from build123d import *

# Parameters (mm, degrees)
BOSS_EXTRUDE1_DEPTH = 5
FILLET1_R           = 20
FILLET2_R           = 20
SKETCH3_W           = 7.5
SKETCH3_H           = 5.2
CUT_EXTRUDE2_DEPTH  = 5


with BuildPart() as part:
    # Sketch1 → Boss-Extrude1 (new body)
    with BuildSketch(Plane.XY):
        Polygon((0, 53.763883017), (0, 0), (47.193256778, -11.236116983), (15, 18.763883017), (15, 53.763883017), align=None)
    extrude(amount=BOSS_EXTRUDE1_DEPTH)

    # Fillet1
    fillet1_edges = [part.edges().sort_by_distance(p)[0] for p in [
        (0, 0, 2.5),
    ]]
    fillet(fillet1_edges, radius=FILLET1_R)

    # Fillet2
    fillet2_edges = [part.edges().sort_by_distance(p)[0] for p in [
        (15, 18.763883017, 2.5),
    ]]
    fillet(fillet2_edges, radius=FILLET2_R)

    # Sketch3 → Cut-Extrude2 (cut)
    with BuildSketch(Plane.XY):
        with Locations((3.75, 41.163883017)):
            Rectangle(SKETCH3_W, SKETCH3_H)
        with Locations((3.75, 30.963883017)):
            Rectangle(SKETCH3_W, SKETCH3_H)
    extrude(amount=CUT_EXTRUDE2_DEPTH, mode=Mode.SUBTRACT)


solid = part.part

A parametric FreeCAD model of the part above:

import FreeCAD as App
import Part
import Sketcher
from FreeCAD import Vector
Q = App.Units.Quantity


def edges_at(feature, points):
    """Names of the edges that pass closest to the given points."""
    edges = feature.Shape.Edges
    near = lambda p: min(range(len(edges)), key=lambda i: edges[i].distToShape(Part.Vertex(*p))[0])
    return sorted({f"Edge{near(p) + 1}" for p in points})

doc = App.newDocument("Part")
body = doc.addObject("PartDesign::Body", "Body")

sketch1 = body.newObject("Sketcher::SketchObject", "Sketch")
sketch1.AttachmentSupport = (doc.getObject("XY_Plane"), [""])
sketch1.MapMode = "FlatFace"
sketch1.addGeometry([
    Part.LineSegment(Vector(0, 54, 0), Vector(0, 0, 0)),
    Part.LineSegment(Vector(0, 0, 0), Vector(47, -11, 0)),
    Part.LineSegment(Vector(47, -11, 0), Vector(15, 19, 0)),
    Part.LineSegment(Vector(15, 19, 0), Vector(15, 54, 0)),
    Part.LineSegment(Vector(15, 54, 0), Vector(0, 54, 0)),
], False)
sketch1.addConstraint([
    Sketcher.Constraint("Coincident", 0, 2, 1, 1),
    Sketcher.Constraint("Coincident", 1, 2, 2, 1),
    Sketcher.Constraint("Coincident", 2, 2, 3, 1),
    Sketcher.Constraint("Coincident", 3, 2, 4, 1),
    Sketcher.Constraint("Coincident", 4, 2, 0, 1),
    Sketcher.Constraint("Vertical", 0),
    Sketcher.Constraint("Vertical", 3),
    Sketcher.Constraint("Horizontal", 4),
    Sketcher.Constraint("Coincident", 0, 2, -1, 1),
    Sketcher.Constraint("DistanceX", 4, 2, 4, 1, Q("15 mm")),
    Sketcher.Constraint("DistanceY", 3, 1, 3, 2, Q("35 mm")),
    Sketcher.Constraint("DistanceY", 1, 2, 2, 2, Q("30 mm")),
    Sketcher.Constraint("Distance", 1, Q("48.512409 mm")),
    Sketcher.Constraint("Distance", 2, Q("44.004611 mm")),
])
pad1 = body.newObject("PartDesign::Pad", "Pad")
pad1.Profile = sketch1
pad1.Length = 5
doc.recompute()

fillet = body.newObject("PartDesign::Fillet", "Fillet")
fillet.Base = (pad1, edges_at(pad1, [(0, 0, 2.5)]))
fillet.Radius = 20
doc.recompute()

fillet2 = body.newObject("PartDesign::Fillet", "Fillet001")
fillet2.Base = (fillet, edges_at(fillet, [(15, 18.764, 2.5)]))
fillet2.Radius = 20

sketch2 = body.newObject("Sketcher::SketchObject", "Sketch001")
sketch2.AttachmentSupport = (doc.getObject("XY_Plane"), [""])
sketch2.MapMode = "FlatFace"
sketch2.addGeometry([
    Part.LineSegment(Vector(0, 44, 0), Vector(0, 39, 0)),
    Part.LineSegment(Vector(0, 39, 0), Vector(8, 39, 0)),
    Part.LineSegment(Vector(8, 39, 0), Vector(8, 44, 0)),
    Part.LineSegment(Vector(8, 44, 0), Vector(0, 44, 0)),
    Part.LineSegment(Vector(0, 34, 0), Vector(0, 28, 0)),
    Part.LineSegment(Vector(0, 28, 0), Vector(8, 28, 0)),
    Part.LineSegment(Vector(8, 28, 0), Vector(8, 34, 0)),
    Part.LineSegment(Vector(8, 34, 0), Vector(0, 34, 0)),
], False)
sketch2.addConstraint([
    Sketcher.Constraint("Coincident", 0, 2, 1, 1),
    Sketcher.Constraint("Coincident", 1, 2, 2, 1),
    Sketcher.Constraint("Coincident", 2, 2, 3, 1),
    Sketcher.Constraint("Coincident", 3, 2, 0, 1),
    Sketcher.Constraint("Coincident", 4, 2, 5, 1),
    Sketcher.Constraint("Coincident", 5, 2, 6, 1),
    Sketcher.Constraint("Coincident", 6, 2, 7, 1),
    Sketcher.Constraint("Coincident", 7, 2, 4, 1),
    Sketcher.Constraint("Vertical", 0),
    Sketcher.Constraint("Horizontal", 1),
    Sketcher.Constraint("Vertical", 2),
    Sketcher.Constraint("Horizontal", 3),
    Sketcher.Constraint("Vertical", 4),
    Sketcher.Constraint("Horizontal", 5),
    Sketcher.Constraint("Vertical", 6),
    Sketcher.Constraint("Horizontal", 7),
    Sketcher.Constraint("PointOnObject", 0, 2, -2),
    Sketcher.Constraint("PointOnObject", 4, 2, -2),
    Sketcher.Constraint("Vertical", 2, 2, 5, 2),
    Sketcher.Constraint("Equal", 2, 4),
    Sketcher.Constraint("DistanceX", 1, 1, 1, 2, Q("7.5 mm")),
    Sketcher.Constraint("DistanceY", 0, 2, 0, 1, Q("5.2 mm")),
    Sketcher.Constraint("DistanceY", 6, 2, 1, 2, Q("5 mm")),
    Sketcher.Constraint("DistanceY", -1, 1, 0, 2, Q("38.563883 mm")),
])
pocket1 = body.newObject("PartDesign::Pocket", "Pocket")
pocket1.Profile = sketch2
pocket1.Length = 5
pocket1.Reversed = True

doc.recompute()
